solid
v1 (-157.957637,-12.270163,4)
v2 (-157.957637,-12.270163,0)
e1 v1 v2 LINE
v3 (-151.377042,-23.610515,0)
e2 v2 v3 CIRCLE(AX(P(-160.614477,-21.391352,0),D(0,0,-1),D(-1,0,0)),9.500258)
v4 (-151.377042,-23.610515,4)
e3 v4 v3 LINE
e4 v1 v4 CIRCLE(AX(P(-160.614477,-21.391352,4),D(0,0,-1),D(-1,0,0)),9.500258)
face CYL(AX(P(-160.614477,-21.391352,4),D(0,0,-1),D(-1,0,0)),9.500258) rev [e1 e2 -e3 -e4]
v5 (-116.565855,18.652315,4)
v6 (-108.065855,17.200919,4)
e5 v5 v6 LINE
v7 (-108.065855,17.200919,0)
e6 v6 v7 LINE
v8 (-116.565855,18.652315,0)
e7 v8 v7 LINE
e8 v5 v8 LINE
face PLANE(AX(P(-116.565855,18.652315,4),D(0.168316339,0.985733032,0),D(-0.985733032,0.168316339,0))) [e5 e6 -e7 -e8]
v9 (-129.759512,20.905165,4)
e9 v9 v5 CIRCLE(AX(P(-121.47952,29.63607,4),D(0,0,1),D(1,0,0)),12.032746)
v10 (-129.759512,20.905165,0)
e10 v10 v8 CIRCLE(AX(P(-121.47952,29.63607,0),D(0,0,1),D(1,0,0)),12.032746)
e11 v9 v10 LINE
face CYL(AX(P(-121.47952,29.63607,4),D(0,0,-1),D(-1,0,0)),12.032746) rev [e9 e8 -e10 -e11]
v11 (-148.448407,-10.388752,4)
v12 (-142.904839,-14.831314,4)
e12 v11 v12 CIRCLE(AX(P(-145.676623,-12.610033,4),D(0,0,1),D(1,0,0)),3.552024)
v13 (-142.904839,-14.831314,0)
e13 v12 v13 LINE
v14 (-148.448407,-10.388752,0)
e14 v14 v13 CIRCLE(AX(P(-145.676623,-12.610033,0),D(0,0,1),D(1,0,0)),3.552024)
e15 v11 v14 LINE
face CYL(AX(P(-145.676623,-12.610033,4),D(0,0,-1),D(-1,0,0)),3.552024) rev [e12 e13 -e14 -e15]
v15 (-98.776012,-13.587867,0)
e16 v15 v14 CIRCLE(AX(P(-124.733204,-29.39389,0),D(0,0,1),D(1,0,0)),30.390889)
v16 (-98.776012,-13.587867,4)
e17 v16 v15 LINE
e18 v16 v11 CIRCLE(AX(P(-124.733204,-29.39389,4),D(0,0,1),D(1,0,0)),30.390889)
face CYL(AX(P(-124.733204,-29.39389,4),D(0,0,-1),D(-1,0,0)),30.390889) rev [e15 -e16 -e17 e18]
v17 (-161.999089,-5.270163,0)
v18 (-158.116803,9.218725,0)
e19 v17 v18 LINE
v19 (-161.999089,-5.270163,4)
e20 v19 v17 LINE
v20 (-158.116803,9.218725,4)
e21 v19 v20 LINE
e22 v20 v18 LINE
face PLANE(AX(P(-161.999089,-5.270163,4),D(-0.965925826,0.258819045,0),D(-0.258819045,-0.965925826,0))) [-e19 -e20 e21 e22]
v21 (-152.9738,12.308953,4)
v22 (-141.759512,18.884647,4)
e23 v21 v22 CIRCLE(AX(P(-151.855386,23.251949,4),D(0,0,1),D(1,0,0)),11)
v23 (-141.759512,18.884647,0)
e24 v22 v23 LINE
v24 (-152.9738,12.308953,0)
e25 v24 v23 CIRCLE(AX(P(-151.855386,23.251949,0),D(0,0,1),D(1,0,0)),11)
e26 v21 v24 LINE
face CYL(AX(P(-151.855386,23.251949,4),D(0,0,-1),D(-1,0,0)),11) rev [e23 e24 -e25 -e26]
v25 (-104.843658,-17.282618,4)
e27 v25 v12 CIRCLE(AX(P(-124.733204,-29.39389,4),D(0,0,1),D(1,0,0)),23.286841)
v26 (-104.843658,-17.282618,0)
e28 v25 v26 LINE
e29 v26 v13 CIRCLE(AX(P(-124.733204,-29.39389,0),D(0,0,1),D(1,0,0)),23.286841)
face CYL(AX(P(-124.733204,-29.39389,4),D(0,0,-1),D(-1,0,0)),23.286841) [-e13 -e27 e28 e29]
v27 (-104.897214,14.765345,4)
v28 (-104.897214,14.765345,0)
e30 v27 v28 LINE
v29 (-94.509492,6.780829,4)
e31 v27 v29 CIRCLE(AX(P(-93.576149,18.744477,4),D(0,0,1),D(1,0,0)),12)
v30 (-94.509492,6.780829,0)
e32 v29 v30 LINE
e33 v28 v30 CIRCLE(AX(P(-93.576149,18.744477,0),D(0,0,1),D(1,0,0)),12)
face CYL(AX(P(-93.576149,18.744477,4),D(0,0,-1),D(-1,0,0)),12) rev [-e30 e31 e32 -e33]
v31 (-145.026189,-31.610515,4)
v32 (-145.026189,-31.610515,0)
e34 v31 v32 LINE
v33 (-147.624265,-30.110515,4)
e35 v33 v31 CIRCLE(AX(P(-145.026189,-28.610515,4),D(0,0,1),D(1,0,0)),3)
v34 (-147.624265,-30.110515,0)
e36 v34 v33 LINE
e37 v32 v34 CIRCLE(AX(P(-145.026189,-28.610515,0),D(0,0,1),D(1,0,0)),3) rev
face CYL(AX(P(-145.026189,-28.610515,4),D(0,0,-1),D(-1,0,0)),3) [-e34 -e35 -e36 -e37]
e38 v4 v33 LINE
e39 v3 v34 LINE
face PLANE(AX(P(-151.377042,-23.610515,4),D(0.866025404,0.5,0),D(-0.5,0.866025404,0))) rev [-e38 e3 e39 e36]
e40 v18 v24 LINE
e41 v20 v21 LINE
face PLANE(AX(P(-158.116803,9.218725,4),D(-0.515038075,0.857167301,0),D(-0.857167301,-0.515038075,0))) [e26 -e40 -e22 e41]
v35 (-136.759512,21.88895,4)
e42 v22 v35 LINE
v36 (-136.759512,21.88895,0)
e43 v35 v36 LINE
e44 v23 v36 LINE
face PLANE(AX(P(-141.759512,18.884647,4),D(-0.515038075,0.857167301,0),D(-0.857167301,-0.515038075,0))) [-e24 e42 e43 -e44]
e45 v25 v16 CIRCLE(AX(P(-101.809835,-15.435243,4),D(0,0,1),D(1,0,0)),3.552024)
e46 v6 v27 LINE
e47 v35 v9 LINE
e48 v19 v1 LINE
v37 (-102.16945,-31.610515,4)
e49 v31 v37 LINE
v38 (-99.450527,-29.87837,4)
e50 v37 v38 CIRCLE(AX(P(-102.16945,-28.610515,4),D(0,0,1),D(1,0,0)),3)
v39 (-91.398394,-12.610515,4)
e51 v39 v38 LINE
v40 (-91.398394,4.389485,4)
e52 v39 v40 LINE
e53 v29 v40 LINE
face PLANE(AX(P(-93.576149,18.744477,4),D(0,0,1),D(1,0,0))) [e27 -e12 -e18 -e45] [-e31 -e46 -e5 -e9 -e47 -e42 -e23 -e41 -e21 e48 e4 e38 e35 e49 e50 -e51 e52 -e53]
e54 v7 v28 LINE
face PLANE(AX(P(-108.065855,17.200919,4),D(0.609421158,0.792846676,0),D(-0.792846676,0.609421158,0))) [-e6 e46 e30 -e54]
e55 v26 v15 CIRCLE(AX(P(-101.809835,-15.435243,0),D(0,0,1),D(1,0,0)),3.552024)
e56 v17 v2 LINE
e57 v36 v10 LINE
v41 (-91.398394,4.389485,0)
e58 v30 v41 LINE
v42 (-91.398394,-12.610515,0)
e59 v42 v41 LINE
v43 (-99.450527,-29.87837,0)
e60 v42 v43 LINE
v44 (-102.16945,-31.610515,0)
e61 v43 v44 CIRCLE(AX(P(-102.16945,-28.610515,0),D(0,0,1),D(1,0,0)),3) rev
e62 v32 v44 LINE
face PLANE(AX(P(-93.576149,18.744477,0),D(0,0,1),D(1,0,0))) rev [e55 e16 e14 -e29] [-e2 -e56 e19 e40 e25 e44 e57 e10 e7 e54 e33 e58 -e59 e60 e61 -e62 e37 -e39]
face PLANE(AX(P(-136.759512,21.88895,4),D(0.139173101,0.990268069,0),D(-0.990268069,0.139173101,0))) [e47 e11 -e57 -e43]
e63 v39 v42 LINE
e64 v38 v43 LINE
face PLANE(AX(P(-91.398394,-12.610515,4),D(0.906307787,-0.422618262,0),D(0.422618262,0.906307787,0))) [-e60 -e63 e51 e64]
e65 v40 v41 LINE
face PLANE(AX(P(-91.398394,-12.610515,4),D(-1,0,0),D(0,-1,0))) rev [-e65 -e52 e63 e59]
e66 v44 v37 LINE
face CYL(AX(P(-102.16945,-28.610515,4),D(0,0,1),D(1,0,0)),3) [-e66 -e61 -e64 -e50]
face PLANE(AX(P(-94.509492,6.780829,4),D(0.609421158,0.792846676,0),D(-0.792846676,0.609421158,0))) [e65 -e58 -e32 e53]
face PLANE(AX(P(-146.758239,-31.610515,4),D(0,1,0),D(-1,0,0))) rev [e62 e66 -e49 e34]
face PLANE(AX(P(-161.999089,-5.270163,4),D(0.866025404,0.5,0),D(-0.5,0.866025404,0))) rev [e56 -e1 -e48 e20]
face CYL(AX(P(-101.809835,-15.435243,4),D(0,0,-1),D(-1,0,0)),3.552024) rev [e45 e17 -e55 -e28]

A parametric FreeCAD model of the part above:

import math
import FreeCAD as App
import Part
import Sketcher
Q = App.Units.Quantity


def edges_at(feature, points):
    """Names of the edges that pass closest to the given points."""
    edges = feature.Shape.Edges
    near = lambda p: min(range(len(edges)), key=lambda i: edges[i].distToShape(Part.Vertex(*p))[0])
    return sorted({f"Edge{near(p) + 1}" for p in points})

doc = App.newDocument("Part")
body = doc.addObject("PartDesign::Body", "Body")

sketch1 = body.newObject("Sketcher::SketchObject", "Sketch")
sketch1.AttachmentSupport = (doc.getObject("XY_Plane"), [""])
sketch1.MapMode = "FlatFace"
sketch1.addGeometry(Part.LineSegment(App.Vector(-146.8, -31.6, 0), App.Vector(-100.3, -31.6, 0)), False)
sketch1.addGeometry(Part.LineSegment(App.Vector(-100.3, -31.6, 0), App.Vector(-91.4, -12.6, 0)), False)
sketch1.addGeometry(Part.LineSegment(App.Vector(-91.4, -12.6, 0), App.Vector(-91.4, 4.4, 0)), False)
sketch1.addGeometry(Part.LineSegment(App.Vector(-91.4, 4.4, 0), App.Vector(-94.5, 6.8, 0)), False)
sketch1.addGeometry(Part.ArcOfCircle(Part.Circle(App.Vector(-93.6, 18.7, 0), App.Vector(0, 0, 1), 12), math.radians(-161), math.radians(-94)), False)
sketch1.addGeometry(Part.LineSegment(App.Vector(-104.9, 14.8, 0), App.Vector(-108.1, 17.2, 0)), False)
sketch1.addGeometry(Part.LineSegment(App.Vector(-108.1, 17.2, 0), App.Vector(-116.6, 18.7, 0)), False)
sketch1.addGeometry(Part.ArcOfCircle(Part.Circle(App.Vector(-121.5, 29.6, 0), App.Vector(0, 0, 1), 12), math.radians(-133), math.radians(-66)), False)
sketch1.addGeometry(Part.LineSegment(App.Vector(-129.8, 20.9, 0), App.Vector(-136.8, 21.9, 0)), False)
sketch1.addGeometry(Part.LineSegment(App.Vector(-136.8, 21.9, 0), App.Vector(-141.8, 18.9, 0)), False)
sketch1.addGeometry(Part.ArcOfCircle(Part.Circle(App.Vector(-151.9, 23.3, 0), App.Vector(0, 0, 1), 11), math.radians(-96), math.radians(-23)), False)
sketch1.addGeometry(Part.LineSegment(App.Vector(-153, 12.3, 0), App.Vector(-158.1, 9.2, 0)), False)
sketch1.addGeometry(Part.LineSegment(App.Vector(-158.1, 9.2, 0), App.Vector(-162, -5.3, 0)), False)
sketch1.addGeometry(Part.LineSegment(App.Vector(-162, -5.3, 0), App.Vector(-158, -12.3, 0)), False)
sketch1.addGeometry(Part.ArcOfCircle(Part.Circle(App.Vector(-160.6, -21.4, 0), App.Vector(0, 0, 1), 9.5), math.radians(-14), math.radians(74)), False)
sketch1.addGeometry(Part.LineSegment(App.Vector(-151.4, -23.6, 0), App.Vector(-146.8, -31.6, 0)), False)
sketch1.addGeometry(Part.ArcOfCircle(Part.Circle(App.Vector(-124.7, -29.4, 0), App.Vector(0, 0, 1), 30.4), math.radians(31), math.radians(141)), False)
sketch1.addGeometry(Part.ArcOfCircle(Part.Circle(App.Vector(-101.8, -15.4, 0), App.Vector(0, 0, 1), 3.6), math.radians(-149), math.radians(31)), False)
sketch1.addGeometry(Part.ArcOfCircle(Part.Circle(App.Vector(-124.7, -29.4, 0), App.Vector(0, 0, 1), 23.3), math.radians(31), math.radians(141)), False)
sketch1.addGeometry(Part.ArcOfCircle(Part.Circle(App.Vector(-145.7, -12.6, 0), App.Vector(0, 0, 1), 3.6), math.radians(141), math.radians(321)), False)
sketch1.addConstraint(Sketcher.Constraint("Coincident", 0, 2, 1, 1))
sketch1.addConstraint(Sketcher.Constraint("Coincident", 1, 2, 2, 1))
sketch1.addConstraint(Sketcher.Constraint("Coincident", 2, 2, 3, 1))
sketch1.addConstraint(Sketcher.Constraint("Coincident", 3, 2, 4, 2))
sketch1.addConstraint(Sketcher.Constraint("Coincident", 4, 1, 5, 1))
sketch1.addConstraint(Sketcher.Constraint("Coincident", 5, 2, 6, 1))
sketch1.addConstraint(Sketcher.Constraint("Coincident", 6, 2, 7, 2))
sketch1.addConstraint(Sketcher.Constraint("Coincident", 7, 1, 8, 1))
sketch1.addConstraint(Sketcher.Constraint("Coincident", 8, 2, 9, 1))
sketch1.addConstraint(Sketcher.Constraint("Coincident", 9, 2, 10, 2))
sketch1.addConstraint(Sketcher.Constraint("Coincident", 10, 1, 11, 1))
sketch1.addConstraint(Sketcher.Constraint("Coincident", 11, 2, 12, 1))
sketch1.addConstraint(Sketcher.Constraint("Coincident", 12, 2, 13, 1))
sketch1.addConstraint(Sketcher.Constraint("Coincident", 13, 2, 14, 2))
sketch1.addConstraint(Sketcher.Constraint("Coincident", 14, 1, 15, 1))
sketch1.addConstraint(Sketcher.Constraint("Coincident", 15, 2, 0, 1))
sketch1.addConstraint(Sketcher.Constraint("Tangent", 16, 1, 17, 2))
sketch1.addConstraint(Sketcher.Constraint("Tangent", 17, 1, 18, 1))
sketch1.addConstraint(Sketcher.Constraint("Tangent", 18, 2, 19, 2))
sketch1.addConstraint(Sketcher.Constraint("Tangent", 19, 1, 16, 2))
sketch1.addConstraint(Sketcher.Constraint("Horizontal", 0))
sketch1.addConstraint(Sketcher.Constraint("Vertical", 2))
sketch1.addConstraint(Sketcher.Constraint("Coincident", 18, 3, 16, 3))
sketch1.addConstraint(Sketcher.Constraint("Parallel", 3, 5))
sketch1.addConstraint(Sketcher.Constraint("Parallel", 9, 11))
sketch1.addConstraint(Sketcher.Constraint("Parallel", 13, 15))
sketch1.addConstraint(Sketcher.Constraint("Radius", 4, 12.0))
sketch1.addConstraint(Sketcher.Constraint("Radius", 10, 11.0))
sketch1.addConstraint(Sketcher.Constraint("DistanceY", 2, 1, 2, 2, 17.0))
sketch1.addConstraint(Sketcher.Constraint("Angle", 1, Q("65 deg")))
sketch1.addConstraint(Sketcher.Constraint("Angle", 8, Q("172 deg")))
sketch1.addConstraint(Sketcher.Constraint("Angle", 9, Q("-149 deg")))
sketch1.addConstraint(Sketcher.Constraint("Angle", 12, Q("-105 deg")))
sketch1.addConstraint(Sketcher.Constraint("Angle", 13, Q("-60 deg")))
sketch1.addConstraint(Sketcher.Constraint("Distance", 11, 6.0))
sketch1.addConstraint(Sketcher.Constraint("Distance", 12, 15.0))
sketch1.addConstraint(Sketcher.Constraint("DistanceX", 0, 1, 0, 2, 46.5))
sketch1.addConstraint(Sketcher.Constraint("DistanceY", 0, 2, 1, 2, 19.0))
sketch1.addConstraint(Sketcher.Constraint("DistanceX", 8, 2, 7, 1, 7.0))
sketch1.addConstraint(Sketcher.Constraint("DistanceX", 9, 2, 8, 2, 5.0))
sketch1.addConstraint(Sketcher.Constraint("DistanceY", 13, 2, 12, 2, 7.0))
sketch1.addConstraint(Sketcher.Constraint("DistanceY", 15, 2, 14, 1, 8.0))
sketch1.addConstraint(Sketcher.Constraint("DistanceX", 6, 2, 5, 2, 8.5))
sketch1.addConstraint(Sketcher.Constraint("Radius", 14, 9.500258))
sketch1.addConstraint(Sketcher.Constraint("Radius", 16, 30.390889))
sketch1.addConstraint(Sketcher.Constraint("Radius", 18, 23.286841))
sketch1.addConstraint(Sketcher.Constraint("Radius", 7, 12.032746))
sketch1.addConstraint(Sketcher.Constraint("DistanceY", 8, 2, 10, 3, 1.362998))
sketch1.addConstraint(Sketcher.Constraint("DistanceX", 10, 1, -1, 1, 152.9738))
sketch1.addConstraint(Sketcher.Constraint("DistanceY", 14, 3, 10, 3, 44.643301))
sketch1.addConstraint(Sketcher.Constraint("DistanceX", 3, 2, 2, 2, 3.111098))
sketch1.addConstraint(Sketcher.Constraint("DistanceX", 7, 1, 4, 1, 24.862298))
sketch1.addConstraint(Sketcher.Constraint("DistanceY", 14, 1, 18, 2, 8.779201))
sketch1.addConstraint(Sketcher.Constraint("DistanceX", 15, 2, 18, 2, 3.8534))
sketch1.addConstraint(Sketcher.Constraint("Distance", 3, 3.92396))
sketch1.addConstraint(Sketcher.Constraint("DistanceX", 4, 3, -1, 1, 93.576149))
sketch1.addConstraint(Sketcher.Constraint("DistanceX", 7, 3, -1, 1, 121.47952))
sketch1.addConstraint(Sketcher.Constraint("DistanceY", -1, 1, 7, 3, 29.63607))
sketch1.addConstraint(Sketcher.Constraint("DistanceY", -1, 1, 10, 3, 23.251949))
sketch1.addConstraint(Sketcher.Constraint("DistanceY", 16, 3, -1, 1, 29.39389))
sketch1.addConstraint(Sketcher.Constraint("DistanceX", 0, 2, -1, 1, 100.258239))
sketch1.addConstraint(Sketcher.Constraint("DistanceY", -1, 1, 5, 2, 17.200919))
sketch1.addConstraint(Sketcher.Constraint("DistanceX", 16, 3, 17, 3, 22.923369))
pad1 = body.newObject("PartDesign::Pad", "Pad")
pad1.Profile = sketch1
pad1.Length = 4
doc.recompute()

fillet = body.newObject("PartDesign::Fillet", "Fillet")
fillet.Base = (pad1, edges_at(pad1, [(-146.758, -31.611, 2), (-100.258, -31.611, 2)]))
fillet.Radius = 3

doc.recompute()
